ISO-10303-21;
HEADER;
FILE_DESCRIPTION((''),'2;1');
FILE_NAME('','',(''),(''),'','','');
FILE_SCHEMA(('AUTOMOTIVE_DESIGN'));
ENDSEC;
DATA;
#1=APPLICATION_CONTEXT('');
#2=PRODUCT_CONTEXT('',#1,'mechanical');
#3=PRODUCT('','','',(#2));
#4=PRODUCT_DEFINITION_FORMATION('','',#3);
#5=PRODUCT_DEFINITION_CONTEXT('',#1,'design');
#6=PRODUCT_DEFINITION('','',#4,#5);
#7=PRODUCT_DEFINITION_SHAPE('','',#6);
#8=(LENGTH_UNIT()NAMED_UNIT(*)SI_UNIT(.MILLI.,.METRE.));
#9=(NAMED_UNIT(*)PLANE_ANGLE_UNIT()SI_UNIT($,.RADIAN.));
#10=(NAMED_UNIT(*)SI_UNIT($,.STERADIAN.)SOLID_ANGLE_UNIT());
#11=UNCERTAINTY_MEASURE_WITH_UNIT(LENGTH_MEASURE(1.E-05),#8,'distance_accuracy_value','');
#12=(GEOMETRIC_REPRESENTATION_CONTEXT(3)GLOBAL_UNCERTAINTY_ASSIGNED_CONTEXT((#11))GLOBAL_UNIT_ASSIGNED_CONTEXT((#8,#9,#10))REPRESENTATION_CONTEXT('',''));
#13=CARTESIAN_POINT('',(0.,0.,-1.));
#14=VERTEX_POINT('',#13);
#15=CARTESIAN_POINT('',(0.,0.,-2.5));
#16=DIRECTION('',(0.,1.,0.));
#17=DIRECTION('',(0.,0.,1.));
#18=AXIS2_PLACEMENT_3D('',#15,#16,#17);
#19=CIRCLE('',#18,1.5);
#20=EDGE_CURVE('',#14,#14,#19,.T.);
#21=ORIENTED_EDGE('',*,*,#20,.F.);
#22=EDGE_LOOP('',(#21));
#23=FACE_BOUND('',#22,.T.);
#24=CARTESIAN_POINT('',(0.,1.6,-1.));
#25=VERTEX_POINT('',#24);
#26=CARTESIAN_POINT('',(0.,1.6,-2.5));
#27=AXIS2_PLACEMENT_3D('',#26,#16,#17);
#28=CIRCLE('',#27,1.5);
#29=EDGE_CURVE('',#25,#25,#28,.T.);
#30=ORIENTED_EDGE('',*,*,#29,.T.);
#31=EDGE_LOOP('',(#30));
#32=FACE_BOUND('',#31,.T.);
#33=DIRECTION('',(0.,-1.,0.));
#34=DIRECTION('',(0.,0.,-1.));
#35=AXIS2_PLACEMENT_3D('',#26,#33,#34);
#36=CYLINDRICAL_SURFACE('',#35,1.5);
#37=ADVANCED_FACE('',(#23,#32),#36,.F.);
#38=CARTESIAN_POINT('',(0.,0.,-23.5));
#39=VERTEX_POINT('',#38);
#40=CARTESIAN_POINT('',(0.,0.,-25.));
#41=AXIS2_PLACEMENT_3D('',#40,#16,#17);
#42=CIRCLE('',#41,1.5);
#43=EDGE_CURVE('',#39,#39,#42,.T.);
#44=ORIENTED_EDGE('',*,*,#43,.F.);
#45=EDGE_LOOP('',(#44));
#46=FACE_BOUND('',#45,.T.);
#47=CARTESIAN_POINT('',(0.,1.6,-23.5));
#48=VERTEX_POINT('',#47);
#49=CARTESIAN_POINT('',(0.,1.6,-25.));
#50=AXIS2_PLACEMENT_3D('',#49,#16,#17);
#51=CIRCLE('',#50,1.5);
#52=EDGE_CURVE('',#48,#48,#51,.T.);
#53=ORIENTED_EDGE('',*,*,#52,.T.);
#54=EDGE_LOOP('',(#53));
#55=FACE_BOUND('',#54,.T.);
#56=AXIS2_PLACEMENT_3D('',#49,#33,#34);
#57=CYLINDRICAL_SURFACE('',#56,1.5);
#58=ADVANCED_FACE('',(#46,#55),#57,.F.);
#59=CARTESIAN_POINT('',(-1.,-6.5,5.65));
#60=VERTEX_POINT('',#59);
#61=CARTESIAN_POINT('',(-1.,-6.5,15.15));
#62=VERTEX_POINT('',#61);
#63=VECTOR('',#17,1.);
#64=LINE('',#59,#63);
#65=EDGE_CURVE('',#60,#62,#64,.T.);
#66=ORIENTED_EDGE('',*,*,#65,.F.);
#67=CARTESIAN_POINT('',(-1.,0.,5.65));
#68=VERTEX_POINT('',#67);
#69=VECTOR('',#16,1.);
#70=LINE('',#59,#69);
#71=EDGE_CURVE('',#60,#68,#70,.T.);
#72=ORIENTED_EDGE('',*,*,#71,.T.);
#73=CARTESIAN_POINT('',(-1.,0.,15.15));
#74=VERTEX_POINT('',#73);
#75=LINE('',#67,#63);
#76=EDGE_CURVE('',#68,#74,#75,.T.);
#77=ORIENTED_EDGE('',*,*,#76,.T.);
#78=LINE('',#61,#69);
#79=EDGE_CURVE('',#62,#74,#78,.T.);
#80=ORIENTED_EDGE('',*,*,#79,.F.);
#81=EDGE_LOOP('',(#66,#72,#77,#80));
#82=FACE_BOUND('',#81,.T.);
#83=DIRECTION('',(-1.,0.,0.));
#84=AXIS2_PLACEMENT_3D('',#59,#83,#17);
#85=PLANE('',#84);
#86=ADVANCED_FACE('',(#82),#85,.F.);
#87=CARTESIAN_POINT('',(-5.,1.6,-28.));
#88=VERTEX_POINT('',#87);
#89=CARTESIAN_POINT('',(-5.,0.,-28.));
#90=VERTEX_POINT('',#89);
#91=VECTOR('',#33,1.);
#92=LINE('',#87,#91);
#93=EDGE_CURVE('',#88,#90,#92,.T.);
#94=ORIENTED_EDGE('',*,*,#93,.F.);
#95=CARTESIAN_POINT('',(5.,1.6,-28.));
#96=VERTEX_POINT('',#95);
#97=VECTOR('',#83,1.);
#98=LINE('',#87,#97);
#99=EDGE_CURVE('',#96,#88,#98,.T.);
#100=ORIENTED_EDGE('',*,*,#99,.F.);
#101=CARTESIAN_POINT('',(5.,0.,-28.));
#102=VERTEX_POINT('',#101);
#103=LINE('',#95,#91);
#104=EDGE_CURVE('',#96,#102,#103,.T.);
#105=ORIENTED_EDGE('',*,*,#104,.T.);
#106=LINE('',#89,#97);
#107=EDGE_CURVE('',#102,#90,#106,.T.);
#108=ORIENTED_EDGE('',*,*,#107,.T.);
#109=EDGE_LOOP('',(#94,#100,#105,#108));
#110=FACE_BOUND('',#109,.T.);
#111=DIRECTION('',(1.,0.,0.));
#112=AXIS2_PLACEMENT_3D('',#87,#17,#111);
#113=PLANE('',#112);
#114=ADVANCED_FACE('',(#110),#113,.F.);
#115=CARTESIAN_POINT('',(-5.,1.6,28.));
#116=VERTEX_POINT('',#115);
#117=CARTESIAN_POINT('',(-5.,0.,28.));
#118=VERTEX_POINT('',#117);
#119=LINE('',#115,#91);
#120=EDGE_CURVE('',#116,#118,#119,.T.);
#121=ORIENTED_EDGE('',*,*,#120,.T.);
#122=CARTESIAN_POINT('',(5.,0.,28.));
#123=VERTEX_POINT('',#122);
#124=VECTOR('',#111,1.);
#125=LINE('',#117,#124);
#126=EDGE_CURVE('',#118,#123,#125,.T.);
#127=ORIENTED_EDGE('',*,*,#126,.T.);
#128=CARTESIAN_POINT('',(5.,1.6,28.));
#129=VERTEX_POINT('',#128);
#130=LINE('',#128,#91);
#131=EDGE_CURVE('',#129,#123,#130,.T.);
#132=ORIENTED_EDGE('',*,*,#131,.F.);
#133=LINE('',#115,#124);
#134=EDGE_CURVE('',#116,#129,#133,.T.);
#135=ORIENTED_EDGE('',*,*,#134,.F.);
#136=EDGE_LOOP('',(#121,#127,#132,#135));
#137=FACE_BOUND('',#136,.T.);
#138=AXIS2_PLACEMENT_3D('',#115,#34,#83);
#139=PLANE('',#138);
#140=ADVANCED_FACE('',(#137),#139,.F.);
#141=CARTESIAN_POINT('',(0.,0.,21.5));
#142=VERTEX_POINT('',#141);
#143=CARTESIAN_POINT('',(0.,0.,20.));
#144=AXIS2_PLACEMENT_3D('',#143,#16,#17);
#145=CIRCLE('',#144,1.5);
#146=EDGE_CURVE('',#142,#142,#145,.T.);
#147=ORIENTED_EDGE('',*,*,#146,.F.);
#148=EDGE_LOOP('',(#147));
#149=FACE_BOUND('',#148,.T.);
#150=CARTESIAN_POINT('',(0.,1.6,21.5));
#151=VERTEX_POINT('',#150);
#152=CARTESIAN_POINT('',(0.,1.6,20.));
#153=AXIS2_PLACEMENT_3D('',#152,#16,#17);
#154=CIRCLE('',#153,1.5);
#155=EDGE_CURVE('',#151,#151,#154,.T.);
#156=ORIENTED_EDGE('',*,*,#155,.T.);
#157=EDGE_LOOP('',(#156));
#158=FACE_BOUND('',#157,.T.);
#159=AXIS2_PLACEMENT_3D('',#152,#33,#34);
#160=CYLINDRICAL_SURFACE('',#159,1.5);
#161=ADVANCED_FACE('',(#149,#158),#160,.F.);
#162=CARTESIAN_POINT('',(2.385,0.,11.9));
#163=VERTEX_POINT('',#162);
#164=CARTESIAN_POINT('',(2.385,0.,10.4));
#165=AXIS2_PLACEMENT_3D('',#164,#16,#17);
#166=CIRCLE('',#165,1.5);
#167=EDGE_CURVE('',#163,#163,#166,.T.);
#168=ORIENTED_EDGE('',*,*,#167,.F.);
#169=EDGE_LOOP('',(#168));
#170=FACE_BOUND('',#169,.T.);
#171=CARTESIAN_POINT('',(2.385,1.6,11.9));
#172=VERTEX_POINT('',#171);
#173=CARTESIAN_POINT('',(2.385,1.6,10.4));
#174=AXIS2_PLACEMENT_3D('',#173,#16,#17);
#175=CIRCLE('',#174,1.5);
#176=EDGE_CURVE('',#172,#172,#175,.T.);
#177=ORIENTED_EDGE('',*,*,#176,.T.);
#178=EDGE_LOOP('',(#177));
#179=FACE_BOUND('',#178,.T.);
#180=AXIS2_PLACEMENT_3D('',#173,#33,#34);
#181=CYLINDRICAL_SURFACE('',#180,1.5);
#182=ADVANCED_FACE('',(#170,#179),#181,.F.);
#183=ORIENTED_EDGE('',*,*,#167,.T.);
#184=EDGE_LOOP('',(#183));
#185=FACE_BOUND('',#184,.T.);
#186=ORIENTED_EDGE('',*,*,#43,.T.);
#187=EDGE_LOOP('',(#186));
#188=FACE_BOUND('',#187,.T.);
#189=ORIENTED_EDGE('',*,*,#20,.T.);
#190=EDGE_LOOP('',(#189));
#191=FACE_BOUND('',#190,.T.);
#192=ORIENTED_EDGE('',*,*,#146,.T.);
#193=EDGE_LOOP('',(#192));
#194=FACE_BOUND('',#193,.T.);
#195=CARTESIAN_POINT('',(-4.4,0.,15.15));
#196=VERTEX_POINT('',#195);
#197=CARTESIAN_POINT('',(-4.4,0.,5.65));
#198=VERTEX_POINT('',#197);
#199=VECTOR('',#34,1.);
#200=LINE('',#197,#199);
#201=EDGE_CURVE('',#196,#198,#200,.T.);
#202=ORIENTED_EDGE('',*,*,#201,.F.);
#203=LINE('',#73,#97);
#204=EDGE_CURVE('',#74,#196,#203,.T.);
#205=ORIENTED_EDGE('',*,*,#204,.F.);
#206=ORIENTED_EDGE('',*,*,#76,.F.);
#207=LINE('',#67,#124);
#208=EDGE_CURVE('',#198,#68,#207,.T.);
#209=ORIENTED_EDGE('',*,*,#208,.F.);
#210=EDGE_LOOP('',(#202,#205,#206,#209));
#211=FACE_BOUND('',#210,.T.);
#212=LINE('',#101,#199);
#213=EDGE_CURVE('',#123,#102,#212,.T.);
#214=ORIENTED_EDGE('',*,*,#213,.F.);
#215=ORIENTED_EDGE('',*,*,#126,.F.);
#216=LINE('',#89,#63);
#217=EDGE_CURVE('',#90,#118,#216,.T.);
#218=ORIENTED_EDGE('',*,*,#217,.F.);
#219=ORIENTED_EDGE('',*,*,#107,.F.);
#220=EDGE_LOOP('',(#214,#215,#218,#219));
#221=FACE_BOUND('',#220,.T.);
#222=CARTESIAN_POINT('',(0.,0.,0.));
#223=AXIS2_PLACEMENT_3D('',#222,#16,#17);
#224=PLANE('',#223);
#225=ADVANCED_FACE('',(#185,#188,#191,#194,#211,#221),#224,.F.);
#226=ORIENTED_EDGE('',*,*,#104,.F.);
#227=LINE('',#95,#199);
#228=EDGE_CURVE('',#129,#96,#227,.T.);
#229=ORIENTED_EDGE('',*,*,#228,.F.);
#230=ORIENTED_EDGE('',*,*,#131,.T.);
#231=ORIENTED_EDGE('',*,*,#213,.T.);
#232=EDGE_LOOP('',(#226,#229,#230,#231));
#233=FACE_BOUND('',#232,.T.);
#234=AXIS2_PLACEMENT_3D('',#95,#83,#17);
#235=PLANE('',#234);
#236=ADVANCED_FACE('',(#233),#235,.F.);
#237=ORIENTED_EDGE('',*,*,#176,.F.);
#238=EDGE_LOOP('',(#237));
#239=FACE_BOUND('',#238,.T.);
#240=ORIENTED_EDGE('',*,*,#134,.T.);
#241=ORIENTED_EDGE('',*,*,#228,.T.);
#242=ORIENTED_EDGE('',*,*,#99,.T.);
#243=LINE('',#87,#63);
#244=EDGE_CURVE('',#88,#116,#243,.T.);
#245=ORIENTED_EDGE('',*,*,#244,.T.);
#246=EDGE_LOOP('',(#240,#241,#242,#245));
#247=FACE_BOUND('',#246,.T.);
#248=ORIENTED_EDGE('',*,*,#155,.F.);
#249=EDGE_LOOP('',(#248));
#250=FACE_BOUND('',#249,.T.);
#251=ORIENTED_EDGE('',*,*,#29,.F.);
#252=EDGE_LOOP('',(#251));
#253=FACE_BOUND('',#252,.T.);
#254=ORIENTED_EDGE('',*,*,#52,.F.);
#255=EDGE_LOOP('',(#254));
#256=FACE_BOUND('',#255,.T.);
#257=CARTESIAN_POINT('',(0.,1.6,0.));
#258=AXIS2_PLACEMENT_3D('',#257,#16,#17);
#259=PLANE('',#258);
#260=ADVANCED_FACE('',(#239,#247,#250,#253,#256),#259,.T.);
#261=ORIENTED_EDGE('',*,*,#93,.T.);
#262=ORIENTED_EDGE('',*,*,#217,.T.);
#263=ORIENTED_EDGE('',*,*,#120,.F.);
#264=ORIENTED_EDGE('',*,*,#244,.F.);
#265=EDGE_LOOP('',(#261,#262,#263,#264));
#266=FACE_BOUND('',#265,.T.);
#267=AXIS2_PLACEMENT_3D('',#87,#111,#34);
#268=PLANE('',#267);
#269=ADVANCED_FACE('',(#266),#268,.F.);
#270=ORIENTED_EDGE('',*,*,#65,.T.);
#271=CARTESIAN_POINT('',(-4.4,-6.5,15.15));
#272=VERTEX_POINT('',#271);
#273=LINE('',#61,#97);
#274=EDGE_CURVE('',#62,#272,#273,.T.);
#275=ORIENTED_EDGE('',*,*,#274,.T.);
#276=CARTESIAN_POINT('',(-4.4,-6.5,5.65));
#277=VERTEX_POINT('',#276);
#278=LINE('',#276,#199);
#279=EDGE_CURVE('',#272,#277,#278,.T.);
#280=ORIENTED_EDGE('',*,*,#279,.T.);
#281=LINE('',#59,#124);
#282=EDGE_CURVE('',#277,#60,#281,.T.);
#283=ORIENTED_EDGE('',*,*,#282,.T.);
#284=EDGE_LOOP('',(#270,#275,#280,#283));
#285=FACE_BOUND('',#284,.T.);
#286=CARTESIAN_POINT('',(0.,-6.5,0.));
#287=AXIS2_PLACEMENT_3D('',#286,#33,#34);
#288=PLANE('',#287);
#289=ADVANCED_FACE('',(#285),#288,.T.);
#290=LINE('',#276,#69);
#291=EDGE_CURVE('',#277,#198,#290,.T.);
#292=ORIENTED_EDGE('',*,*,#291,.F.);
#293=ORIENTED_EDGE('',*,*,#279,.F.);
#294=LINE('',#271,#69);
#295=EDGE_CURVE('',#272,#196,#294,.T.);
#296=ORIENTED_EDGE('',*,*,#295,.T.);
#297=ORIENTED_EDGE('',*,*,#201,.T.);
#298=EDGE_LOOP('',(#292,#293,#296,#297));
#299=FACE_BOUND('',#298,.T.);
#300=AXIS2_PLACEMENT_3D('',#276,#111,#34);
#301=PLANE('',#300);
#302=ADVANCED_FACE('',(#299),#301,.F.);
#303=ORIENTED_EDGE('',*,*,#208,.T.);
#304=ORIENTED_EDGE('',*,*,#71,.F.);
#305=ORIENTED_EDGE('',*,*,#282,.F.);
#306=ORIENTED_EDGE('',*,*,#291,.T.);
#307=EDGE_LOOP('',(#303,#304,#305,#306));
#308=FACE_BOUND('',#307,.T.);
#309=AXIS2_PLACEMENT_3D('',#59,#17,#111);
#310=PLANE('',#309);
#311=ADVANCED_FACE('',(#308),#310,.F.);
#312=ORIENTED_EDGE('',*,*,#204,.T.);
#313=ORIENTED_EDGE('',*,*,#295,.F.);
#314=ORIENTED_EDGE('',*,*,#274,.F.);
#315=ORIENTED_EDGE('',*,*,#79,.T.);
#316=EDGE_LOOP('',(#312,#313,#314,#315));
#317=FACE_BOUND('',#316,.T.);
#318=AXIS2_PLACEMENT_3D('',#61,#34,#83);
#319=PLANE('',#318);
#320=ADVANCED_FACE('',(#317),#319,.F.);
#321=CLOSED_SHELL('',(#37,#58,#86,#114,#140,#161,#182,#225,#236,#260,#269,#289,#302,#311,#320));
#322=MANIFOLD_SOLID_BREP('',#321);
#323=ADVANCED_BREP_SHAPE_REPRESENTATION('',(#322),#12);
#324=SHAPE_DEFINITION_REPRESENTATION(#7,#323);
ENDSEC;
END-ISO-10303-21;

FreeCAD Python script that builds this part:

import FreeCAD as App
import Part
import Sketcher

V = App.Vector

doc = App.newDocument("Part")
body = doc.addObject("PartDesign::Body", "Body")

# Sketch on XZ plane
sketch1 = body.newObject("Sketcher::SketchObject", "Sketch")
sketch1.AttachmentSupport = (doc.getObject("XZ_Plane"), [""])
sketch1.MapMode = "FlatFace"
sketch1.addGeometry(Part.LineSegment(V(-5, -28, 0), V(-5, 28, 0)), False)
sketch1.addGeometry(Part.LineSegment(V(-5, 28, 0), V(5, 28, 0)), False)
sketch1.addGeometry(Part.LineSegment(V(5, 28, 0), V(5, -28, 0)), False)
sketch1.addGeometry(Part.LineSegment(V(5, -28, 0), V(-5, -28, 0)), False)
sketch1.addGeometry(Part.Circle(V(0, 20, 0), V(0, 0, 1), 1.5), False)
sketch1.addGeometry(Part.Circle(V(2.4, 10.4, 0), V(0, 0, 1), 1.5), False)
sketch1.addGeometry(Part.Circle(V(0, -2.5, 0), V(0, 0, 1), 1.5), False)
sketch1.addGeometry(Part.Circle(V(0, -25, 0), V(0, 0, 1), 1.5), False)
sketch1.addConstraint(Sketcher.Constraint("Coincident", 0, 2, 1, 1))
sketch1.addConstraint(Sketcher.Constraint("Coincident", 1, 2, 2, 1))
sketch1.addConstraint(Sketcher.Constraint("Coincident", 2, 2, 3, 1))
sketch1.addConstraint(Sketcher.Constraint("Coincident", 3, 2, 0, 1))
sketch1.addConstraint(Sketcher.Constraint("Vertical", 0))
sketch1.addConstraint(Sketcher.Constraint("Horizontal", 1))
sketch1.addConstraint(Sketcher.Constraint("Vertical", 2))
sketch1.addConstraint(Sketcher.Constraint("Horizontal", 3))
sketch1.addConstraint(Sketcher.Constraint("Equal", 4, 5))
sketch1.addConstraint(Sketcher.Constraint("Equal", 5, 6))
sketch1.addConstraint(Sketcher.Constraint("Equal", 6, 7))
sketch1.addConstraint(Sketcher.Constraint("Symmetric", 0, 2, 2, 2, -1, 1))
sketch1.addConstraint(Sketcher.Constraint("PointOnObject", 4, 3, -2))
sketch1.addConstraint(Sketcher.Constraint("PointOnObject", 6, 3, -2))
sketch1.addConstraint(Sketcher.Constraint("PointOnObject", 7, 3, -2))
sketch1.addConstraint(Sketcher.Constraint("Diameter", 4, 3.0))
sketch1.addConstraint(Sketcher.Constraint("DistanceX", 1, 1, 1, 2, 10.0))
sketch1.addConstraint(Sketcher.Constraint("DistanceY", 0, 1, 0, 2, 56.0))
sketch1.addConstraint(Sketcher.Constraint("DistanceY", -1, 1, 4, 3, 20.0))
sketch1.addConstraint(Sketcher.Constraint("DistanceY", 7, 3, -1, 1, 25.0))
sketch1.addConstraint(Sketcher.Constraint("DistanceY", -1, 1, 5, 3, 10.4))
sketch1.addConstraint(Sketcher.Constraint("DistanceY", 6, 3, -1, 1, 2.5))
sketch1.addConstraint(Sketcher.Constraint("DistanceX", -1, 1, 5, 3, 2.385))
pad1 = body.newObject("PartDesign::Pad", "Pad")
pad1.Profile = sketch1
pad1.Length = 1.6
pad1.Reversed = True

# Sketch on XZ plane
sketch2 = body.newObject("Sketcher::SketchObject", "Sketch001")
sketch2.AttachmentSupport = (doc.getObject("XZ_Plane"), [""])
sketch2.MapMode = "FlatFace"
sketch2.addGeometry(Part.LineSegment(V(-4.4, 15.2, 0), V(-4.4, 5.7, 0)), False)
sketch2.addGeometry(Part.LineSegment(V(-4.4, 5.7, 0), V(-1, 5.7, 0)), False)
sketch2.addGeometry(Part.LineSegment(V(-1, 5.7, 0), V(-1, 15.2, 0)), False)
sketch2.addGeometry(Part.LineSegment(V(-1, 15.2, 0), V(-4.4, 15.2, 0)), False)
sketch2.addConstraint(Sketcher.Constraint("Coincident", 0, 2, 1, 1))
sketch2.addConstraint(Sketcher.Constraint("Coincident", 1, 2, 2, 1))
sketch2.addConstraint(Sketcher.Constraint("Coincident", 2, 2, 3, 1))
sketch2.addConstraint(Sketcher.Constraint("Coincident", 3, 2, 0, 1))
sketch2.addConstraint(Sketcher.Constraint("Vertical", 0))
sketch2.addConstraint(Sketcher.Constraint("Horizontal", 1))
sketch2.addConstraint(Sketcher.Constraint("Vertical", 2))
sketch2.addConstraint(Sketcher.Constraint("Horizontal", 3))
sketch2.addConstraint(Sketcher.Constraint("DistanceX", 1, 1, 1, 2, 3.4))
sketch2.addConstraint(Sketcher.Constraint("DistanceY", 0, 2, 0, 1, 9.5))
sketch2.addConstraint(Sketcher.Constraint("DistanceX", 1, 2, -1, 1, 1.0))
sketch2.addConstraint(Sketcher.Constraint("DistanceY", -1, 1, 0, 2, 5.65))
pad2 = body.newObject("PartDesign::Pad", "Pad001")
pad2.Profile = sketch2
pad2.Length = 6.5

doc.recompute()
